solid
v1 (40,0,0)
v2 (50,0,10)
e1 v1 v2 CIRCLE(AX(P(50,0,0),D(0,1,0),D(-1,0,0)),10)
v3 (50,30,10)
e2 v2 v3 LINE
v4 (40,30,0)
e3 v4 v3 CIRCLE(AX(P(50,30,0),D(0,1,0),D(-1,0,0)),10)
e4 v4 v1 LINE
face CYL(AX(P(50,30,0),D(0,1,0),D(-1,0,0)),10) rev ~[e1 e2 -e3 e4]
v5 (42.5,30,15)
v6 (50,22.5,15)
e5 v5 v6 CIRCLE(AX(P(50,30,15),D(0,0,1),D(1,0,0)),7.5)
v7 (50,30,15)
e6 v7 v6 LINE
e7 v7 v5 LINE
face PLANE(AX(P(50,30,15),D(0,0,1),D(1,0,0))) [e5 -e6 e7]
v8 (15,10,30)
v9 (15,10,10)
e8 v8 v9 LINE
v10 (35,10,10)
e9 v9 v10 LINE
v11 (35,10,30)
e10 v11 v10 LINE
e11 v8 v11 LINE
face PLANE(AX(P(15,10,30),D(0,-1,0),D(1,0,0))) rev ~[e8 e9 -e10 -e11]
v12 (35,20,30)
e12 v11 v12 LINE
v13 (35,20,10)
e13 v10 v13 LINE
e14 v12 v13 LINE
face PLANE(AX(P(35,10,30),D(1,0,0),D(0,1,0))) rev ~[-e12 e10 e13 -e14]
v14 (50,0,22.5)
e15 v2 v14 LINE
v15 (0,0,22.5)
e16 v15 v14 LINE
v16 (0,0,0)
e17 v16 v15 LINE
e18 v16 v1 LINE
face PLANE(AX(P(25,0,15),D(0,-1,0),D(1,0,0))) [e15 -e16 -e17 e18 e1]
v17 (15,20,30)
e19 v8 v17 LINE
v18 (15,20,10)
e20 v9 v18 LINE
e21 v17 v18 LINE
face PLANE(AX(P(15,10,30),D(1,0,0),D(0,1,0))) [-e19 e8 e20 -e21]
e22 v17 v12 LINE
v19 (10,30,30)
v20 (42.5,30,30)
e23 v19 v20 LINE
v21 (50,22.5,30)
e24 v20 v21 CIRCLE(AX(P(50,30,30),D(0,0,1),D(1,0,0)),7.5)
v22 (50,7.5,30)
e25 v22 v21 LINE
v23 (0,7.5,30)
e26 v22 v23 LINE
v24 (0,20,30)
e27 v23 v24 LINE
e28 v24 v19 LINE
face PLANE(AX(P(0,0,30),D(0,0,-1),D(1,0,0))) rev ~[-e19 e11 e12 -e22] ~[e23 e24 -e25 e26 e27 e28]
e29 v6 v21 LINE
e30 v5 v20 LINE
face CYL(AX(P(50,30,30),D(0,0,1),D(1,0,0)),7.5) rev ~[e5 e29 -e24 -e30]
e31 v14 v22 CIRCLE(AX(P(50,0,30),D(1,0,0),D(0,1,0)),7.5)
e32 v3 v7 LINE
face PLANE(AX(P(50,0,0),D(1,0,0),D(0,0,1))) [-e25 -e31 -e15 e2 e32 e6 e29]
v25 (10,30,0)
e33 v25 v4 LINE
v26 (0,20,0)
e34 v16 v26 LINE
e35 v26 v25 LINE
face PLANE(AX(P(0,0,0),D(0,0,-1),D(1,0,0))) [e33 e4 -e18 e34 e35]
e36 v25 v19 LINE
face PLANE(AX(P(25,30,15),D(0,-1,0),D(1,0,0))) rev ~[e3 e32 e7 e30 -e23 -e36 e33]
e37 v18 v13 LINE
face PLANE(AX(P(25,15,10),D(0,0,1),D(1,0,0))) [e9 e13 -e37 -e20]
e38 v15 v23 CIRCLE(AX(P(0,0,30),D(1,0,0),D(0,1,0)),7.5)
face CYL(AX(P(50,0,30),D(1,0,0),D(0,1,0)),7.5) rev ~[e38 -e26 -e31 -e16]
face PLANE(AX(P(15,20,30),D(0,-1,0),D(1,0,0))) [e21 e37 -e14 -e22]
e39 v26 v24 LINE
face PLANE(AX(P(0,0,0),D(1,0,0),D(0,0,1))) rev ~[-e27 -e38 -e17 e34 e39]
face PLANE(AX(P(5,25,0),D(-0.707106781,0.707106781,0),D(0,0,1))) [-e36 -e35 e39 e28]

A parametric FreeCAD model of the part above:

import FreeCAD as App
import Part
import Sketcher
from FreeCAD import Vector


def edges_at(feature, points):
    """Names of the edges that pass closest to the given points."""
    edges = feature.Shape.Edges
    near = lambda p: min(range(len(edges)), key=lambda i: edges[i].distToShape(Part.Vertex(*p))[0])
    return sorted({f"Edge{near(p) + 1}" for p in points})


def add_polygon(sketch, points):
    """Adds a closed chain of lines whose ends are joined by coincident constraints."""
    first, n = sketch.GeometryCount, len(points)
    for a, b in zip(points, points[1:] + points[:1]):
        sketch.addGeometry(Part.LineSegment(App.Vector(*a, 0), App.Vector(*b, 0)), False)
    for i in range(n):
        sketch.addConstraint(Sketcher.Constraint("Coincident", first + i, 2, first + (i + 1) % n, 1))

doc = App.newDocument("Part")
params = doc.addObject("Spreadsheet::Sheet", "Params")
for row, (alias, value) in enumerate([
    ("sketch1_width", "50 mm"),
    ("sketch1_height", "30 mm"),
    ("pad1_length", "30 mm"),
    ("sketch2_width", "20 mm"),
    ("sketch2_height", "10 mm"),
    ("pocket1_length", "20 mm"),
    ("chamfer_size", "10 mm"),
    ("sketch3_diameter", "15 mm"),
    ("pocket2_length", "15 mm"),
    ("sketch4_diameter", "15 mm"),
    ("sketch5_diameter", "20 mm"),
], start=1):
    params.set(f"A{row}", alias)
    params.set(f"B{row}", "=" + value)
    params.setAlias(f"B{row}", alias)

body = doc.addObject("PartDesign::Body", "Body")

# Sketch on XZ plane
sketch1 = body.newObject("Sketcher::SketchObject", "Sketch")
sketch1.AttachmentSupport = (doc.getObject("XZ_Plane"), [""])
sketch1.MapMode = "FlatFace"
add_polygon(sketch1, [(0, 30), (0, 0), (50, 0), (50, 30)])  # lines 0-3
sketch1.addConstraint([
    Sketcher.Constraint("Vertical", 0),
    Sketcher.Constraint("Horizontal", 1),
    Sketcher.Constraint("Vertical", 2),
    Sketcher.Constraint("Horizontal", 3),
    Sketcher.Constraint("Coincident", 0, 2, -1, 1),
    Sketcher.Constraint("DistanceX", 1, 1, 1, 2, 50.0),
    Sketcher.Constraint("DistanceY", 0, 2, 0, 1, 30.0),
])
sketch1.setExpression("Constraints[9]", "Params.sketch1_width")
sketch1.setExpression("Constraints[10]", "Params.sketch1_height")
pad1 = body.newObject("PartDesign::Pad", "Pad")
pad1.Profile = sketch1
pad1.setExpression("Length", "Params.pad1_length")
pad1.Reversed = True

# Sketch on XY plane
sketch2 = body.newObject("Sketcher::SketchObject", "Sketch001")
sketch2.AttachmentSupport = (doc.getObject("XY_Plane"), [""])
sketch2.MapMode = "FlatFace"
sketch2.AttachmentOffset = App.Placement(Vector(0, 0, 30), App.Rotation())
add_polygon(sketch2, [(15, 20), (15, 10), (35, 10), (35, 20)])  # lines 0-3
sketch2.addConstraint([
    Sketcher.Constraint("Vertical", 0),
    Sketcher.Constraint("Horizontal", 1),
    Sketcher.Constraint("Vertical", 2),
    Sketcher.Constraint("Horizontal", 3),
    Sketcher.Constraint("DistanceX", 1, 1, 1, 2, 20.0),
    Sketcher.Constraint("DistanceY", 0, 2, 0, 1, 10.0),
    Sketcher.Constraint("DistanceX", -1, 1, 0, 2, 15.0),
    Sketcher.Constraint("DistanceY", -1, 1, 0, 2, 10.0),
])
sketch2.setExpression("Constraints[8]", "Params.sketch2_width")
sketch2.setExpression("Constraints[9]", "Params.sketch2_height")
pocket1 = body.newObject("PartDesign::Pocket", "Pocket")
pocket1.Profile = sketch2
pocket1.setExpression("Length", "Params.pocket1_length")
doc.recompute()

chamfer = body.newObject("PartDesign::Chamfer", "Chamfer")
chamfer.Base = (pocket1, edges_at(pocket1, [(0, 30, 15)]))
chamfer.setExpression("Size", "Params.chamfer_size")

# Sketch on XY plane
sketch3 = body.newObject("Sketcher::SketchObject", "Sketch002")
sketch3.AttachmentSupport = (doc.getObject("XY_Plane"), [""])
sketch3.MapMode = "FlatFace"
sketch3.AttachmentOffset = App.Placement(Vector(0, 0, 30), App.Rotation())
sketch3.addGeometry(Part.Circle(Vector(50, 30, 0), Vector(0, 0, 1), 8), False)
sketch3.addConstraint([
    Sketcher.Constraint("Diameter", 0, 15.0),
    Sketcher.Constraint("DistanceX", -1, 1, 0, 3, 50.0),
    Sketcher.Constraint("DistanceY", -1, 1, 0, 3, 30.0),
])
sketch3.setExpression("Constraints[0]", "Params.sketch3_diameter")
pocket2 = body.newObject("PartDesign::Pocket", "Pocket001")
pocket2.Profile = sketch3
pocket2.setExpression("Length", "Params.pocket2_length")

# Sketch on YZ plane
sketch4 = body.newObject("Sketcher::SketchObject", "Sketch003")
sketch4.AttachmentSupport = (doc.getObject("YZ_Plane"), [""])
sketch4.MapMode = "FlatFace"
sketch4.AttachmentOffset = App.Placement(Vector(0, 0, 50), App.Rotation())
sketch4.addGeometry(Part.Circle(Vector(0, 30, 0), Vector(0, 0, 1), 8), False)
sketch4.addConstraint([
    Sketcher.Constraint("PointOnObject", 0, 3, -2),
    Sketcher.Constraint("Diameter", 0, 15.0),
    Sketcher.Constraint("DistanceY", -1, 1, 0, 3, 30.0),
])
sketch4.setExpression("Constraints[1]", "Params.sketch4_diameter")
pocket3 = body.newObject("PartDesign::Pocket", "Pocket002")
pocket3.Profile = sketch4
pocket3.Type = "ThroughAll"

# Sketch on XZ plane
sketch5 = body.newObject("Sketcher::SketchObject", "Sketch004")
sketch5.AttachmentSupport = (doc.getObject("XZ_Plane"), [""])
sketch5.MapMode = "FlatFace"
sketch5.AttachmentOffset = App.Placement(Vector(0, 0, -30), App.Rotation())
sketch5.addGeometry(Part.Circle(Vector(50, 0, 0), Vector(0, 0, 1), 10), False)
sketch5.addConstraint([
    Sketcher.Constraint("PointOnObject", 0, 3, -1),
    Sketcher.Constraint("Diameter", 0, 20.0),
    Sketcher.Constraint("DistanceX", -1, 1, 0, 3, 50.0),
])
sketch5.setExpression("Constraints[1]", "Params.sketch5_diameter")
pocket4 = body.newObject("PartDesign::Pocket", "Pocket003")
pocket4.Profile = sketch5
pocket4.Type = "ThroughAll"
pocket4.Reversed = True

doc.recompute()
